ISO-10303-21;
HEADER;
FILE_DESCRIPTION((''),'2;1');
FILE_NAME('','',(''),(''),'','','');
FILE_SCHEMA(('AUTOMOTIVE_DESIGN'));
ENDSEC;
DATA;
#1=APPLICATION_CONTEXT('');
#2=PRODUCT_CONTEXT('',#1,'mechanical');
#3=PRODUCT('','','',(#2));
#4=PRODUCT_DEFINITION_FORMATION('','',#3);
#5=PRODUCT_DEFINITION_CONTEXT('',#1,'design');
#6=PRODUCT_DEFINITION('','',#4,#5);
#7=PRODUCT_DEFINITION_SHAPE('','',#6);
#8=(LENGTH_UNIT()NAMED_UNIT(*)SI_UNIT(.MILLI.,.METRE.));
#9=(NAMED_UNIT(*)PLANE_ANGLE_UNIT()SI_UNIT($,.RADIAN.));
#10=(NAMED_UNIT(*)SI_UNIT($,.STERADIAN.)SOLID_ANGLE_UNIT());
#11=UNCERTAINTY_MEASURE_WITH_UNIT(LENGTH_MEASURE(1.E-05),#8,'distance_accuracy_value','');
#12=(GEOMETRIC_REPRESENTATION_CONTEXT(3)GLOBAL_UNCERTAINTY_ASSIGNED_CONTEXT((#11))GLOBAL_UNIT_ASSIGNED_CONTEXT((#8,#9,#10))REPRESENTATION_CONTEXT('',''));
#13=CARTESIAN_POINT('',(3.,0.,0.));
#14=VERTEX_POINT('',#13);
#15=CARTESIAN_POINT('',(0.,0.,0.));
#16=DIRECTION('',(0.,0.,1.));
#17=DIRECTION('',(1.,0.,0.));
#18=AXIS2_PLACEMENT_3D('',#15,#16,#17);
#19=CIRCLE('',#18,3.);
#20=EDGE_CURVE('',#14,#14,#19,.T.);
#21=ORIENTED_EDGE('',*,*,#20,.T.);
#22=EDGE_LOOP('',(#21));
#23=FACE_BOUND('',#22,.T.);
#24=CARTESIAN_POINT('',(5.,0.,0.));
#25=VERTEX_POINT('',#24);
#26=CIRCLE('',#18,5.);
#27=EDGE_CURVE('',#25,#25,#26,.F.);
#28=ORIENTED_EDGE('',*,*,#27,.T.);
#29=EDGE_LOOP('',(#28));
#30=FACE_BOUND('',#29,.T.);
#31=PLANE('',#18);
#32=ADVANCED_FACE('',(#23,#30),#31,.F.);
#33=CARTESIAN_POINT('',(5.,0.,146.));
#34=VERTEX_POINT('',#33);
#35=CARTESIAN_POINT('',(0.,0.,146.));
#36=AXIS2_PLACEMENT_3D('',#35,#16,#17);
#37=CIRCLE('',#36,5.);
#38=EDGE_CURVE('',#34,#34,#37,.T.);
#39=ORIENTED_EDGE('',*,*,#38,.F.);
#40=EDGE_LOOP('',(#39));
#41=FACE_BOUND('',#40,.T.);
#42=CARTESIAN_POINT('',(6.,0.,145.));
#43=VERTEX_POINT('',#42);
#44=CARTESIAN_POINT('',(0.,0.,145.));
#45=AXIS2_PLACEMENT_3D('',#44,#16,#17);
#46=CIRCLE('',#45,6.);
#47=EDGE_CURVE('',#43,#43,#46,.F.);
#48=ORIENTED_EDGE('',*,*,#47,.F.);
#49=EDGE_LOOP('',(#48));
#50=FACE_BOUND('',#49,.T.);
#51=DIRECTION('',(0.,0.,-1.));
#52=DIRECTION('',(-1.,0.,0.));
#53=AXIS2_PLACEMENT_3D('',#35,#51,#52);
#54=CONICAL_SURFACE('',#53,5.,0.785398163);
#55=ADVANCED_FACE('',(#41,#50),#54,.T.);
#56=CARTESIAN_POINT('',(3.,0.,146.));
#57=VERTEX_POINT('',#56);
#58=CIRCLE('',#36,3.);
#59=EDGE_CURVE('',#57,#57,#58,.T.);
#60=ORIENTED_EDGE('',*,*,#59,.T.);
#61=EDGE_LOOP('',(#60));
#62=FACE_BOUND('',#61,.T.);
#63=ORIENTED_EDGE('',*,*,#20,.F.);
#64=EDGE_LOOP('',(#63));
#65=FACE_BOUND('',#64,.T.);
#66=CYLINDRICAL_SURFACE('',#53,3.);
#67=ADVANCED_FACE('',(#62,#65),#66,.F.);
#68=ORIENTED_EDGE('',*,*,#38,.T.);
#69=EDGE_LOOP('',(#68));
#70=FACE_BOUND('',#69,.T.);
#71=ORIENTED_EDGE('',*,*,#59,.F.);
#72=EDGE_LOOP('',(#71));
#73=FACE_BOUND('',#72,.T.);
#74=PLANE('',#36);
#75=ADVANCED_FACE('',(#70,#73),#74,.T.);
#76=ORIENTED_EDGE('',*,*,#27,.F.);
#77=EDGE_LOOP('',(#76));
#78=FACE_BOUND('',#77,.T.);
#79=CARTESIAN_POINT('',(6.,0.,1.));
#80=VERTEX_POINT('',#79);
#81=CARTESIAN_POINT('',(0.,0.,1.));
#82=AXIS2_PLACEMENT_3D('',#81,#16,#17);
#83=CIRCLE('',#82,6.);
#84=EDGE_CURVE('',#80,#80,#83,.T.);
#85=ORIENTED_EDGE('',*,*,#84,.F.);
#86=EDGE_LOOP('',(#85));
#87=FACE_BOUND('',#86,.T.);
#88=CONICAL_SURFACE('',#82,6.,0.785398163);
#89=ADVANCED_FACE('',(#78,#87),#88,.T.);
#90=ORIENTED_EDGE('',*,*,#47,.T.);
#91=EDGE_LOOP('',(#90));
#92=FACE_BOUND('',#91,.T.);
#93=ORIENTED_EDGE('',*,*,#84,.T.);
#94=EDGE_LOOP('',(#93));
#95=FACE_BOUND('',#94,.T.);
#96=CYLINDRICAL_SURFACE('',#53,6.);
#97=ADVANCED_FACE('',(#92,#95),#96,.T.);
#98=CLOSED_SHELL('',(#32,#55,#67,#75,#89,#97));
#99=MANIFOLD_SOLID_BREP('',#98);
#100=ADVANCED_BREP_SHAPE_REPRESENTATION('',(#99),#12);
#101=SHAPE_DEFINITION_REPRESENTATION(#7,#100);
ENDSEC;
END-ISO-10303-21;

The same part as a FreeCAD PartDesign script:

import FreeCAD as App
import Part
import Sketcher
from FreeCAD import Vector
Q = App.Units.Quantity


def edges_at(feature, points):
    """Names of the edges that pass closest to the given points."""
    edges = feature.Shape.Edges
    near = lambda p: min(range(len(edges)), key=lambda i: edges[i].distToShape(Part.Vertex(*p))[0])
    return sorted({f"Edge{near(p) + 1}" for p in points})

doc = App.newDocument("Part")
params = doc.addObject("Spreadsheet::Sheet", "Params")
for row, (alias, value) in enumerate([
    ("sketch1_diameter", "12 mm"),
    ("sketch1_diameter2", "6 mm"),
    ("pad1_length", "146 mm"),
    ("chamfer_size", "1 mm"),
], start=1):
    params.set(f"A{row}", alias)
    params.set(f"B{row}", "=" + value)
    params.setAlias(f"B{row}", alias)

body = doc.addObject("PartDesign::Body", "Body")

# Sketch on XY plane
sketch1 = doc.addObject("Sketcher::SketchObject", "Sketch")
body.addObject(sketch1)
sketch1.AttachmentSupport = (doc.XY_Plane, [""])
sketch1.MapMode = "FlatFace"
sketch1.addGeometry(Part.Circle(Vector(0, 0, 0), Vector(0, 0, 1), 6), False)
sketch1.addGeometry(Part.Circle(Vector(0, 0, 0), Vector(0, 0, 1), 3), False)
sketch1.addConstraint(Sketcher.Constraint("Coincident", 0, 3, -1, 1))
sketch1.addConstraint(Sketcher.Constraint("Coincident", 1, 3, -1, 1))
sketch1.addConstraint(Sketcher.Constraint("Diameter", 0, Q("12 mm")))
sketch1.addConstraint(Sketcher.Constraint("Diameter", 1, Q("6 mm")))
sketch1.setExpression("Constraints[2]", "Params.sketch1_diameter")
sketch1.setExpression("Constraints[3]", "Params.sketch1_diameter2")
pad1 = doc.addObject("PartDesign::Pad", "Pad")
body.addObject(pad1)
pad1.Profile = sketch1
pad1.setExpression("Length", "Params.pad1_length")
doc.recompute()

chamfer = doc.addObject("PartDesign::Chamfer", "Chamfer")
body.addObject(chamfer)
chamfer.Base = (pad1, edges_at(pad1, [(-6, 0, 0), (-6, 0, 146)]))
chamfer.setExpression("Size", "Params.chamfer_size")

doc.recompute()
